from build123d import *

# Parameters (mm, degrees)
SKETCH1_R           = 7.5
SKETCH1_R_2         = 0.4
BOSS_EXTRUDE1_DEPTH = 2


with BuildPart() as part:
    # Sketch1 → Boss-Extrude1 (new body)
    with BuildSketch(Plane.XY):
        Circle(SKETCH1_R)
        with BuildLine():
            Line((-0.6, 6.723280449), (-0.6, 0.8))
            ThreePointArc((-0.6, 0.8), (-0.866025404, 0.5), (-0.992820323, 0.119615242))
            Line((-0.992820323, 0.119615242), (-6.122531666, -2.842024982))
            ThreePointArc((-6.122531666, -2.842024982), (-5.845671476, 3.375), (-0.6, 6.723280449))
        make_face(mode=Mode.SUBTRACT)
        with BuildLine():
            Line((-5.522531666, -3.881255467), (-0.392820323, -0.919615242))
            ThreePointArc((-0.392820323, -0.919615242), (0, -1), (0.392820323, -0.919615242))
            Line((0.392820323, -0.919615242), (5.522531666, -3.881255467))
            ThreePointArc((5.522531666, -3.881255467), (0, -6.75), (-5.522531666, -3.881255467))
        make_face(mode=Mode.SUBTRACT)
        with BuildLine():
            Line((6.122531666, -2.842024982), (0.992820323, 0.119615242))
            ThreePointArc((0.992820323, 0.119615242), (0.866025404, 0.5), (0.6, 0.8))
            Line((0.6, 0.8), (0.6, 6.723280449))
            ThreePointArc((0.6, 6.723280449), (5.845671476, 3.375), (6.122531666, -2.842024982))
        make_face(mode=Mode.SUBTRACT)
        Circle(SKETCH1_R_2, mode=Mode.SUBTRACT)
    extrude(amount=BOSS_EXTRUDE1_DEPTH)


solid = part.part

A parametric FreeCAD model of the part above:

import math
import FreeCAD as App
import Part
import Sketcher
Q = App.Units.Quantity

doc = App.newDocument("Part")
body = doc.addObject("PartDesign::Body", "Body")

# Sketch on XY plane
sketch1 = doc.addObject("Sketcher::SketchObject", "Sketch")
body.addObject(sketch1)
sketch1.AttachmentSupport = (doc.XY_Plane, [""])
sketch1.MapMode = "FlatFace"
sketch1.addGeometry([
    Part.Circle(App.Vector(0, 0, 0), App.Vector(0, 0, 1), 7.5),  # 0
    Part.ArcOfCircle(Part.Circle(App.Vector(0, 0, 0), App.Vector(0, 0, 1), 6.75), math.radians(-145), math.radians(-35)),  # 1
    Part.LineSegment(App.Vector(-5.52, -3.88, 0), App.Vector(-0.39, -0.92, 0)),  # 2
    Part.ArcOfCircle(Part.Circle(App.Vector(0, 0, 0), App.Vector(0, 0, 1), 1), math.radians(-113), math.radians(-67)),  # 3
    Part.LineSegment(App.Vector(0.39, -0.92, 0), App.Vector(5.52, -3.88, 0)),  # 4
    Part.ArcOfCircle(Part.Circle(App.Vector(0, 0, 0), App.Vector(0, 0, 1), 6.75), math.radians(95), math.radians(205)),  # 5
    Part.LineSegment(App.Vector(-0.6, 6.72, 0), App.Vector(-0.6, 0.8, 0)),  # 6
    Part.ArcOfCircle(Part.Circle(App.Vector(0, 0, 0), App.Vector(0, 0, 1), 1), math.radians(127), math.radians(173)),  # 7
    Part.LineSegment(App.Vector(-0.99, 0.12, 0), App.Vector(-6.12, -2.84, 0)),  # 8
    Part.Circle(App.Vector(0, 0, 0), App.Vector(0, 0, 1), 0.4),  # 9
    Part.ArcOfCircle(Part.Circle(App.Vector(0, 0, 0), App.Vector(0, 0, 1), 6.75), math.radians(-25), math.radians(85)),  # 10
    Part.LineSegment(App.Vector(6.12, -2.84, 0), App.Vector(0.99, 0.12, 0)),  # 11
    Part.ArcOfCircle(Part.Circle(App.Vector(0, 0, 0), App.Vector(0, 0, 1), 1), math.radians(7), math.radians(53)),  # 12
    Part.LineSegment(App.Vector(0.6, 0.8, 0), App.Vector(0.6, 6.72, 0)),  # 13
], False)
sketch1.addConstraint([
    Sketcher.Constraint("Coincident", 1, 1, 2, 1),
    Sketcher.Constraint("Coincident", 2, 2, 3, 1),
    Sketcher.Constraint("Coincident", 3, 2, 4, 1),
    Sketcher.Constraint("Coincident", 4, 2, 1, 2),
    Sketcher.Constraint("Coincident", 5, 1, 6, 1),
    Sketcher.Constraint("Coincident", 6, 2, 7, 1),
    Sketcher.Constraint("Coincident", 7, 2, 8, 1),
    Sketcher.Constraint("Coincident", 8, 2, 5, 2),
    Sketcher.Constraint("Coincident", 10, 1, 11, 1),
    Sketcher.Constraint("Coincident", 11, 2, 12, 1),
    Sketcher.Constraint("Coincident", 12, 2, 13, 1),
    Sketcher.Constraint("Coincident", 13, 2, 10, 2),
    Sketcher.Constraint("Vertical", 6),
    Sketcher.Constraint("Vertical", 13),
    Sketcher.Constraint("Coincident", 0, 3, -1, 1),
    Sketcher.Constraint("Coincident", 1, 3, -1, 1),
    Sketcher.Constraint("Coincident", 3, 3, -1, 1),
    Sketcher.Constraint("Coincident", 5, 3, -1, 1),
    Sketcher.Constraint("Coincident", 7, 3, -1, 1),
    Sketcher.Constraint("Coincident", 9, 3, -1, 1),
    Sketcher.Constraint("Coincident", 10, 3, -1, 1),
    Sketcher.Constraint("Coincident", 12, 3, -1, 1),
    Sketcher.Constraint("Equal", 1, 5),
    Sketcher.Constraint("Equal", 3, 7),
    Sketcher.Constraint("Equal", 5, 10),
    Sketcher.Constraint("Equal", 7, 12),
    Sketcher.Constraint("Parallel", 2, 8),
    Sketcher.Constraint("Parallel", 4, 11),
    Sketcher.Constraint("Horizontal", 2, 2, 3, 2),
    Sketcher.Constraint("Horizontal", 1, 1, 4, 2),
    Sketcher.Constraint("Horizontal", 8, 2, 10, 1),
    Sketcher.Constraint("Horizontal", 6, 2, 12, 2),
    Sketcher.Constraint("Equal", 4, 8),
    Sketcher.Constraint("Diameter", 0, 15.0),
    Sketcher.Constraint("Radius", 3, 1.0),
    Sketcher.Constraint("Diameter", 9, 0.8),
    Sketcher.Constraint("Angle", 2, Q("30 deg")),
    Sketcher.Constraint("Radius", 1, 6.75),
    Sketcher.Constraint("DistanceX", 5, 1, -1, 1, 0.6),
    Sketcher.Constraint("DistanceX", 8, 2, 1, 1, 0.6),
])
pad1 = doc.addObject("PartDesign::Pad", "Pad")
body.addObject(pad1)
pad1.Profile = sketch1
pad1.Length = 2

doc.recompute()
